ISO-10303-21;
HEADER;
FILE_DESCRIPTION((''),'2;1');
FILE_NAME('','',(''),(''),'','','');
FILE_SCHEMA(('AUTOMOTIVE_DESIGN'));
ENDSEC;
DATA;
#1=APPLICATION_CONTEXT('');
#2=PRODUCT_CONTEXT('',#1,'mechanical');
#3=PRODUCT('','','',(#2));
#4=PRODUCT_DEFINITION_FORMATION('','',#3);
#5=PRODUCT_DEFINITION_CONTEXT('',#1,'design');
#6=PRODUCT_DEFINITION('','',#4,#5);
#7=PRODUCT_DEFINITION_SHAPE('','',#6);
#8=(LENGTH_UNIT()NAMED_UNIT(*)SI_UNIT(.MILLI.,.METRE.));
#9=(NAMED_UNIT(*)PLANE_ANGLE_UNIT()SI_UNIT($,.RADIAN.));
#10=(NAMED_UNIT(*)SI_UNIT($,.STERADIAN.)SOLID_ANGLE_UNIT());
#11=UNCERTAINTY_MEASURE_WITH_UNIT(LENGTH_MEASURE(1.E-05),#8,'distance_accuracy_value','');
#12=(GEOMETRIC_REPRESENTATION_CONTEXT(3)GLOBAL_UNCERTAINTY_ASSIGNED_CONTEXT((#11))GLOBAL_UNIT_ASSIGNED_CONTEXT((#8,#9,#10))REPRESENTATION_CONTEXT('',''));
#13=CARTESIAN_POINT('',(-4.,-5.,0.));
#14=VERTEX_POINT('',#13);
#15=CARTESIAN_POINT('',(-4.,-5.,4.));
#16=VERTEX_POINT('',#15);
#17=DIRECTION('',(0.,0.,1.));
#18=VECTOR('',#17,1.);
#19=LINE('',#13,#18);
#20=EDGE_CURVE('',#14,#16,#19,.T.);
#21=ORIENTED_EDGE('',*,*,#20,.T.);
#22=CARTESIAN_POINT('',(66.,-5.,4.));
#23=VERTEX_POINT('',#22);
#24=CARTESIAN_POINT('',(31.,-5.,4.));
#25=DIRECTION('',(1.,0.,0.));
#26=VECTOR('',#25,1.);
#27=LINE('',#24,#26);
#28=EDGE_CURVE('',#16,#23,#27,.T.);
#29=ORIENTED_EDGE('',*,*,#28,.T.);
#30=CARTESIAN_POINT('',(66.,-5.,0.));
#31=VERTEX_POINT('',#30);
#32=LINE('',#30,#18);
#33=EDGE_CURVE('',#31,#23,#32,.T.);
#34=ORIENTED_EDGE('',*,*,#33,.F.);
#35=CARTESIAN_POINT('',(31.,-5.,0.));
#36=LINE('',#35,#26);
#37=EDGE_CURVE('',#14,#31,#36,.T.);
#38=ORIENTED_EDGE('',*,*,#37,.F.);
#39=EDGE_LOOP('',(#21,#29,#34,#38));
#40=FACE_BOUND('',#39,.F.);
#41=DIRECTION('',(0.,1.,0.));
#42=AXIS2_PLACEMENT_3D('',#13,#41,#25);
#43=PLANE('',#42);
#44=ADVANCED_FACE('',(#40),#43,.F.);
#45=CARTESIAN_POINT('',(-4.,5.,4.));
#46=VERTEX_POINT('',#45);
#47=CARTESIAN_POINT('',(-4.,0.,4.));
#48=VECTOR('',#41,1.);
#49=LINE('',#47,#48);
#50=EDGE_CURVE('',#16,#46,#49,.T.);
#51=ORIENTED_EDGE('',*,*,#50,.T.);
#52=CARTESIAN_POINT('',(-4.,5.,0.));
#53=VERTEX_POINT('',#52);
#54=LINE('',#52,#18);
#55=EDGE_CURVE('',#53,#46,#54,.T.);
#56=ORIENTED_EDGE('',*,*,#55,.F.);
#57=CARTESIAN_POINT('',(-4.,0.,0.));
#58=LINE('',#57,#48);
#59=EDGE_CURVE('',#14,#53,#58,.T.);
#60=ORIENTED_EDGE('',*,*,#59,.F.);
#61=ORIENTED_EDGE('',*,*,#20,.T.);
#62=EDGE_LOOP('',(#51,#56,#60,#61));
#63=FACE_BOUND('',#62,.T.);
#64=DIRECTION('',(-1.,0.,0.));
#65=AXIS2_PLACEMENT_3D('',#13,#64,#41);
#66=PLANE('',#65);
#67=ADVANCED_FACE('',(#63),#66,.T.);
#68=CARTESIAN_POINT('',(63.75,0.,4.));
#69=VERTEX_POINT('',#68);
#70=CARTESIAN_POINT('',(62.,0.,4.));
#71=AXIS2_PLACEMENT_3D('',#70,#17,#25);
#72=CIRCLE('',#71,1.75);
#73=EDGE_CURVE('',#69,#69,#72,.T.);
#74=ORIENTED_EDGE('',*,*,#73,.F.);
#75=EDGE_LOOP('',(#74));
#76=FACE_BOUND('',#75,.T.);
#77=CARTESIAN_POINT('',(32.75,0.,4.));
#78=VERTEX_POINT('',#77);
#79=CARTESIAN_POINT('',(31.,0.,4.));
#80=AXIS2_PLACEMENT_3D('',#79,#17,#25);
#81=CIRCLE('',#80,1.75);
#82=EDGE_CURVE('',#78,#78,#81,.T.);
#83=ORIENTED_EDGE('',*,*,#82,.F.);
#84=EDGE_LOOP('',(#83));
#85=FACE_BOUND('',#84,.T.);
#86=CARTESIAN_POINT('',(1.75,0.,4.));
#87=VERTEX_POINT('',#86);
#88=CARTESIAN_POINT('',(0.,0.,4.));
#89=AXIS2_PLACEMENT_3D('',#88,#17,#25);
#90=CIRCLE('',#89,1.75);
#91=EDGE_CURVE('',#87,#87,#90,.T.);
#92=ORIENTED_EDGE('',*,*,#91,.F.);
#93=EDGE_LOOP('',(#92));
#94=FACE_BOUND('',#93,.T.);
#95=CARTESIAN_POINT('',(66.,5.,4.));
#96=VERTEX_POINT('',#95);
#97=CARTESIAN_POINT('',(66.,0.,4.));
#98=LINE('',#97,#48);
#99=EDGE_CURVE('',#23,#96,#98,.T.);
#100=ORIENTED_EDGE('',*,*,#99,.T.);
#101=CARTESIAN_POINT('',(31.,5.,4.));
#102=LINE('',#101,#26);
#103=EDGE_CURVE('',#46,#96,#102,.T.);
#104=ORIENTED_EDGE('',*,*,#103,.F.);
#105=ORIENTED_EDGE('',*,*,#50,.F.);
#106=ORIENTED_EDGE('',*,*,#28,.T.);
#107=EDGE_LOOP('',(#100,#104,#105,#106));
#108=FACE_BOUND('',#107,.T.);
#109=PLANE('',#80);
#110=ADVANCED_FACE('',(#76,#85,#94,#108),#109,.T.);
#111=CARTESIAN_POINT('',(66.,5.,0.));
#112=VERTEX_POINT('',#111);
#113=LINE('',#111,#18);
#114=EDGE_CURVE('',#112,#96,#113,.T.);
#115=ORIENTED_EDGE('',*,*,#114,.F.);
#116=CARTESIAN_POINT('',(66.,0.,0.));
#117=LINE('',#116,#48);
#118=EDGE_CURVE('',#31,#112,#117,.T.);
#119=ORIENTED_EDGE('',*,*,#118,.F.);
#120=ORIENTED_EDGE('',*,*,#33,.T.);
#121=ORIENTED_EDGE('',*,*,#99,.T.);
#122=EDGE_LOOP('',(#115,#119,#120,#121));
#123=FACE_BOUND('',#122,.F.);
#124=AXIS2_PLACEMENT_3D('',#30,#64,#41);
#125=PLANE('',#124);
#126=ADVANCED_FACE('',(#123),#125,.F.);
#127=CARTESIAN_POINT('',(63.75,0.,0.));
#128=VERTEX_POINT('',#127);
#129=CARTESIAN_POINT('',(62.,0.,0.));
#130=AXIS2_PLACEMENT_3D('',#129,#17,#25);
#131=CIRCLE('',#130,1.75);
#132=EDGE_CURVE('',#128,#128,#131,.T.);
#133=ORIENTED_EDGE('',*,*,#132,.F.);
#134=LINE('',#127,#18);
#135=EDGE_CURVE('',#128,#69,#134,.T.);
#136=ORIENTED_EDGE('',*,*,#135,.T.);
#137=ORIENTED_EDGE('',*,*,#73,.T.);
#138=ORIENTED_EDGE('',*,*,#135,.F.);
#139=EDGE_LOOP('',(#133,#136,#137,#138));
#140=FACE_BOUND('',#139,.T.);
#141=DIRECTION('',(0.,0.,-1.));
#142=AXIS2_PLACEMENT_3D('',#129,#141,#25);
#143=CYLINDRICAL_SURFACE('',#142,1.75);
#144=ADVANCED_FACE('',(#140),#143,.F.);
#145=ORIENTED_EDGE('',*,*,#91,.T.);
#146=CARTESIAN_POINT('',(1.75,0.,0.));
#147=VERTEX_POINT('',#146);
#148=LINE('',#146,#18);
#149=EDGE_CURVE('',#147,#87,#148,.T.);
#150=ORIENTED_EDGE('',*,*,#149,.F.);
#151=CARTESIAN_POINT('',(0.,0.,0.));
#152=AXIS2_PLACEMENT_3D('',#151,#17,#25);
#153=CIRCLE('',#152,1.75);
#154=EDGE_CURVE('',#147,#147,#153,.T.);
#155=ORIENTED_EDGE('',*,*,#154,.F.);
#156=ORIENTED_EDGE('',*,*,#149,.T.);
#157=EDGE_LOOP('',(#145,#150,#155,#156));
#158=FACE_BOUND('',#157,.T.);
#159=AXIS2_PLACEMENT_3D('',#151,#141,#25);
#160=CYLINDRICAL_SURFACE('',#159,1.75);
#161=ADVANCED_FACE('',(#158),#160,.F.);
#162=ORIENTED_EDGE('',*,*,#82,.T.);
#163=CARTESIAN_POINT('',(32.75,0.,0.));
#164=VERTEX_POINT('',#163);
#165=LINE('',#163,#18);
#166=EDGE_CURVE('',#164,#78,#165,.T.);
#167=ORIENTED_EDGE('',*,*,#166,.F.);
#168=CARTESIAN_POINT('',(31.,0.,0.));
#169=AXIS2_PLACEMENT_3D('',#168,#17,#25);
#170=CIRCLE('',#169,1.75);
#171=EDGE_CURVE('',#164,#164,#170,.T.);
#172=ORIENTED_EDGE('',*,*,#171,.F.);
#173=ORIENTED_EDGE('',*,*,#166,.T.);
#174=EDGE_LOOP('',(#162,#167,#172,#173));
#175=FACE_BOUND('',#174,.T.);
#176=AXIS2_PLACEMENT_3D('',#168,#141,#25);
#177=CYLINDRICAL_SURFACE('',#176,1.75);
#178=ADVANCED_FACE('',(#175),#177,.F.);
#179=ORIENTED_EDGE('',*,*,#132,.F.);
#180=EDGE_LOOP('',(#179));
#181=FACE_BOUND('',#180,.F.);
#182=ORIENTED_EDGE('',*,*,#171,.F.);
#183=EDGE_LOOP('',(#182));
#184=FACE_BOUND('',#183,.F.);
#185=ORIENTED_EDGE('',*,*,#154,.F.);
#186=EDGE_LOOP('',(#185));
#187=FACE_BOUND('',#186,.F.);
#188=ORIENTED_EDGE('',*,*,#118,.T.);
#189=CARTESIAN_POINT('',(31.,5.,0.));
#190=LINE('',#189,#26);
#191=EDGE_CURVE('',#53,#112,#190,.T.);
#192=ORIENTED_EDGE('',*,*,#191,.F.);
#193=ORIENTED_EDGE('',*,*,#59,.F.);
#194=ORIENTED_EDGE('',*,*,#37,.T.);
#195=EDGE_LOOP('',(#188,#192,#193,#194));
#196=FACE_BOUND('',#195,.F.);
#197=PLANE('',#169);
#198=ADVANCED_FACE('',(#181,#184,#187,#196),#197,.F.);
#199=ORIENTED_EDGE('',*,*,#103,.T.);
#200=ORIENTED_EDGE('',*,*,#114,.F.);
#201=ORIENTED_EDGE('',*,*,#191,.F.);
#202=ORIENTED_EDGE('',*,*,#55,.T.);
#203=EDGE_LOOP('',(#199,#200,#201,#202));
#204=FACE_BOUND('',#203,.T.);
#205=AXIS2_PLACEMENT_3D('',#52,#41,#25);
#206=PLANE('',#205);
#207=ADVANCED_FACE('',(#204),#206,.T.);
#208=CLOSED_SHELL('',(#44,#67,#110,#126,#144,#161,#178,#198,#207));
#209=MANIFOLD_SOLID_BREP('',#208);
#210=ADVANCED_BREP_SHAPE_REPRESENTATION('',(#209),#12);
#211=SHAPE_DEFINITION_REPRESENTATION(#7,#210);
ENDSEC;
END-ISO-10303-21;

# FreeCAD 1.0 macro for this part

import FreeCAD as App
import Part
import Sketcher

V = App.Vector
Q = App.Units.Quantity


def add_polygon(sketch, points):
    """Adds a closed chain of lines whose ends are joined by coincident constraints."""
    first, n = sketch.GeometryCount, len(points)
    for a, b in zip(points, points[1:] + points[:1]):
        sketch.addGeometry(Part.LineSegment(App.Vector(*a, 0), App.Vector(*b, 0)), False)
    for i in range(n):
        sketch.addConstraint(Sketcher.Constraint("Coincident", first + i, 2, first + (i + 1) % n, 1))

doc = App.newDocument("Part")
body = doc.addObject("PartDesign::Body", "Body")

# Sketch on XY plane
sketch1 = doc.addObject("Sketcher::SketchObject", "Sketch")
body.addObject(sketch1)
sketch1.AttachmentSupport = (doc.XY_Plane, [""])
sketch1.MapMode = "FlatFace"
add_polygon(sketch1, [(-4, 5), (-4, -5), (66, -5), (66, 5)])  # lines 0-3
sketch1.addGeometry(Part.Circle(V(0, 0, 0), V(0, 0, 1), 1.8), False)  # 4
sketch1.addGeometry(Part.Circle(V(31, 0, 0), V(0, 0, 1), 1.8), False)  # 5
sketch1.addGeometry(Part.Circle(V(62, 0, 0), V(0, 0, 1), 1.8), False)  # 6
sketch1.addConstraint([
    Sketcher.Constraint("Vertical", 0),
    Sketcher.Constraint("Horizontal", 1),
    Sketcher.Constraint("Vertical", 2),
    Sketcher.Constraint("Horizontal", 3),
    Sketcher.Constraint("Coincident", 4, 3, -1, 1),
    Sketcher.Constraint("Equal", 4, 5),
    Sketcher.Constraint("Equal", 5, 6),
    Sketcher.Constraint("PointOnObject", 5, 3, -1),
    Sketcher.Constraint("PointOnObject", 6, 3, -1),
    Sketcher.Constraint("Diameter", 4, Q("3.5 mm")),
    Sketcher.Constraint("DistanceX", 1, 1, 1, 2, Q("70 mm")),
    Sketcher.Constraint("DistanceY", 0, 2, 0, 1, Q("10 mm")),
    Sketcher.Constraint("DistanceX", -1, 1, 5, 3, Q("31 mm")),
    Sketcher.Constraint("DistanceX", -1, 1, 6, 3, Q("62 mm")),
    Sketcher.Constraint("DistanceX", 0, 2, -1, 1, Q("4 mm")),
    Sketcher.Constraint("DistanceY", 0, 2, -1, 1, Q("5 mm")),
])
pad1 = doc.addObject("PartDesign::Pad", "Pad")
body.addObject(pad1)
pad1.Profile = sketch1
pad1.Length = 4

doc.recompute()
